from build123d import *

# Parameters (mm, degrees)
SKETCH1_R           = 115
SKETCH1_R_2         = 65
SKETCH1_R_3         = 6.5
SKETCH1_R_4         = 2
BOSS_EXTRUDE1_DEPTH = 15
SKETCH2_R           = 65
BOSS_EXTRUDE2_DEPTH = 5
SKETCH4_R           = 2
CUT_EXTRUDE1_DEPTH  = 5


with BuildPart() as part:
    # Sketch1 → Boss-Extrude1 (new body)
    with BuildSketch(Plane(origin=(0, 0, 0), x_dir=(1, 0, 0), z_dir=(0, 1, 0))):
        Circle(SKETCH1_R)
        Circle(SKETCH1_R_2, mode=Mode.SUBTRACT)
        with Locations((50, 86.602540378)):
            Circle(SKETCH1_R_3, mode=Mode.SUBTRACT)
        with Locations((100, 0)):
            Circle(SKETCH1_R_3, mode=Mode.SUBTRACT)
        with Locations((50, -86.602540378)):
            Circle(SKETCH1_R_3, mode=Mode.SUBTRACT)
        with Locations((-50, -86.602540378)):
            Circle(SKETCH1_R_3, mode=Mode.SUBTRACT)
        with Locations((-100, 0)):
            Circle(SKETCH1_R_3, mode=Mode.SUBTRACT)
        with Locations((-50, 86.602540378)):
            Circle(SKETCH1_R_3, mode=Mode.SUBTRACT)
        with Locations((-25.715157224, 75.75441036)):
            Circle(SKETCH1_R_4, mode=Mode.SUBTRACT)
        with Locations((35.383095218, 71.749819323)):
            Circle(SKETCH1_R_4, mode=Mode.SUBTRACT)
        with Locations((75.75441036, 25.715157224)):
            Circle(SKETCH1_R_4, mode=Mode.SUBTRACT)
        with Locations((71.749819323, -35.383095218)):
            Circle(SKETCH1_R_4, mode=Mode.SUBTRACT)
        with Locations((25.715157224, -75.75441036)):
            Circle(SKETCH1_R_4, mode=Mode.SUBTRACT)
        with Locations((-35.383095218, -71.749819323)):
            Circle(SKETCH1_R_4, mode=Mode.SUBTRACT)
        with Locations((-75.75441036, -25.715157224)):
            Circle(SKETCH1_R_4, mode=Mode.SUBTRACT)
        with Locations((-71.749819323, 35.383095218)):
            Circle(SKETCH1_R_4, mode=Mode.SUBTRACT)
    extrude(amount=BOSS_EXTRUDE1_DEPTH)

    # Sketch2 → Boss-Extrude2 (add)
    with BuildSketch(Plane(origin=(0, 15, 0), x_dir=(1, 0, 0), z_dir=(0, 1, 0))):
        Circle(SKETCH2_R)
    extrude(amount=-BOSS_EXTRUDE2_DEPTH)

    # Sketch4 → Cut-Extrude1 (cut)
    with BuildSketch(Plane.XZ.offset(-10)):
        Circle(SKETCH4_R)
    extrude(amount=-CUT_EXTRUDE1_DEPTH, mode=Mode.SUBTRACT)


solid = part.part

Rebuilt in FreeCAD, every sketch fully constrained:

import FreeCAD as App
import Part
import Sketcher

doc = App.newDocument("Part")
params = doc.addObject("Spreadsheet::Sheet", "Params")
for row, (alias, value) in enumerate([
    ("sketch1_diameter", "230 mm"),
    ("sketch1_diameter2", "13 mm"),
    ("sketch1_diameter3", "4 mm"),
    ("sketch1_diameter4", "130 mm"),
    ("pad1_length", "15 mm"),
    ("sketch2_diameter", "130 mm"),
    ("pad2_length", "5 mm"),
    ("sketch3_diameter", "4 mm"),
    ("pocket1_length", "5 mm"),
], start=1):
    params.set(f"A{row}", alias)
    params.set(f"B{row}", "=" + value)
    params.setAlias(f"B{row}", alias)

body = doc.addObject("PartDesign::Body", "Body")

sketch1 = doc.addObject("Sketcher::SketchObject", "Sketch")
body.addObject(sketch1)
sketch1.AttachmentSupport = (doc.XZ_Plane, [""])
sketch1.MapMode = "FlatFace"
sketch1.addGeometry(Part.Circle(App.Vector(0, 0, 0), App.Vector(0, 0, 1), 115), False)
sketch1.addGeometry(Part.Circle(App.Vector(-50, 86.60254, 0), App.Vector(0, 0, 1), 6.5), False)
sketch1.addGeometry(Part.Circle(App.Vector(-35.383095, 71.749819, 0), App.Vector(0, 0, 1), 2), False)
sketch1.addGeometry(Part.Circle(App.Vector(-75.75441, 25.715157, 0), App.Vector(0, 0, 1), 2), False)
sketch1.addGeometry(Part.Circle(App.Vector(25.715157, 75.75441, 0), App.Vector(0, 0, 1), 2), False)
sketch1.addGeometry(Part.Circle(App.Vector(50, 86.60254, 0), App.Vector(0, 0, 1), 6.5), False)
sketch1.addGeometry(Part.Circle(App.Vector(71.749819, 35.383095, 0), App.Vector(0, 0, 1), 2), False)
sketch1.addGeometry(Part.Circle(App.Vector(-100, 0, 0), App.Vector(0, 0, 1), 6.5), False)
sketch1.addGeometry(Part.Circle(App.Vector(-71.749819, -35.383095, 0), App.Vector(0, 0, 1), 2), False)
sketch1.addGeometry(Part.Circle(App.Vector(-50, -86.60254, 0), App.Vector(0, 0, 1), 6.5), False)
sketch1.addGeometry(Part.Circle(App.Vector(-25.715157, -75.75441, 0), App.Vector(0, 0, 1), 2), False)
sketch1.addGeometry(Part.Circle(App.Vector(0, 0, 0), App.Vector(0, 0, 1), 65), False)
sketch1.addGeometry(Part.Circle(App.Vector(100, 0, 0), App.Vector(0, 0, 1), 6.5), False)
sketch1.addGeometry(Part.Circle(App.Vector(75.75441, -25.715157, 0), App.Vector(0, 0, 1), 2), False)
sketch1.addGeometry(Part.Circle(App.Vector(35.383095, -71.749819, 0), App.Vector(0, 0, 1), 2), False)
sketch1.addGeometry(Part.Circle(App.Vector(50, -86.60254, 0), App.Vector(0, 0, 1), 6.5), False)
sketch1.addConstraint(Sketcher.Constraint("Coincident", 0, 3, -1, 1))
sketch1.addConstraint(Sketcher.Constraint("Coincident", 11, 3, -1, 1))
sketch1.addConstraint(Sketcher.Constraint("Equal", 2, 3))
sketch1.addConstraint(Sketcher.Constraint("Equal", 3, 4))
sketch1.addConstraint(Sketcher.Constraint("Equal", 1, 5))
sketch1.addConstraint(Sketcher.Constraint("Equal", 4, 6))
sketch1.addConstraint(Sketcher.Constraint("Equal", 5, 7))
sketch1.addConstraint(Sketcher.Constraint("Equal", 6, 8))
sketch1.addConstraint(Sketcher.Constraint("Equal", 7, 9))
sketch1.addConstraint(Sketcher.Constraint("Equal", 8, 10))
sketch1.addConstraint(Sketcher.Constraint("Equal", 9, 12))
sketch1.addConstraint(Sketcher.Constraint("Equal", 10, 13))
sketch1.addConstraint(Sketcher.Constraint("Equal", 13, 14))
sketch1.addConstraint(Sketcher.Constraint("Equal", 12, 15))
sketch1.addConstraint(Sketcher.Constraint("Symmetric", 6, 3, 8, 3, -1, 1))
sketch1.addConstraint(Sketcher.Constraint("Symmetric", 5, 3, 9, 3, -1, 1))
sketch1.addConstraint(Sketcher.Constraint("Symmetric", 4, 3, 10, 3, -1, 1))
sketch1.addConstraint(Sketcher.Constraint("Symmetric", 7, 3, 12, 3, -1, 1))
sketch1.addConstraint(Sketcher.Constraint("Symmetric", 3, 3, 13, 3, -1, 1))
sketch1.addConstraint(Sketcher.Constraint("Symmetric", 2, 3, 14, 3, -1, 1))
sketch1.addConstraint(Sketcher.Constraint("Symmetric", 1, 3, 15, 3, -1, 1))
sketch1.addConstraint(Sketcher.Constraint("Symmetric", 1, 3, 5, 3, -2))
sketch1.addConstraint(Sketcher.Constraint("PointOnObject", 7, 3, -1))
sketch1.addConstraint(Sketcher.Constraint("Diameter", 0, 230.0))
sketch1.addConstraint(Sketcher.Constraint("Diameter", 1, 13.0))
sketch1.addConstraint(Sketcher.Constraint("Diameter", 2, 4.0))
sketch1.addConstraint(Sketcher.Constraint("Diameter", 11, 130.0))
sketch1.addConstraint(Sketcher.Constraint("DistanceX", 1, 3, -1, 1, 50.0))
sketch1.addConstraint(Sketcher.Constraint("DistanceX", 7, 3, -1, 1, 100.0))
sketch1.addConstraint(Sketcher.Constraint("DistanceY", -1, 1, 1, 3, 86.60254))
sketch1.addConstraint(Sketcher.Constraint("DistanceY", -1, 1, 2, 3, 71.749819))
sketch1.addConstraint(Sketcher.Constraint("DistanceX", 3, 3, -1, 1, 75.75441))
sketch1.addConstraint(Sketcher.Constraint("DistanceY", -1, 1, 4, 3, 75.75441))
sketch1.addConstraint(Sketcher.Constraint("DistanceX", -1, 1, 6, 3, 71.749819))
sketch1.addConstraint(Sketcher.Constraint("DistanceX", 2, 3, -1, 1, 35.383095))
sketch1.addConstraint(Sketcher.Constraint("DistanceY", -1, 1, 3, 3, 25.715157))
sketch1.addConstraint(Sketcher.Constraint("DistanceX", -1, 1, 4, 3, 25.715157))
sketch1.addConstraint(Sketcher.Constraint("DistanceY", -1, 1, 6, 3, 35.383095))
sketch1.setExpression("Constraints[23]", "Params.sketch1_diameter")
sketch1.setExpression("Constraints[24]", "Params.sketch1_diameter2")
sketch1.setExpression("Constraints[25]", "Params.sketch1_diameter3")
sketch1.setExpression("Constraints[26]", "Params.sketch1_diameter4")
pad1 = doc.addObject("PartDesign::Pad", "Pad")
body.addObject(pad1)
pad1.Profile = sketch1
pad1.setExpression("Length", "Params.pad1_length")
pad1.Reversed = True

sketch2 = doc.addObject("Sketcher::SketchObject", "Sketch001")
body.addObject(sketch2)
sketch2.AttachmentSupport = (doc.XZ_Plane, [""])
sketch2.MapMode = "FlatFace"
sketch2.AttachmentOffset = App.Placement(App.Vector(0, 0, -15), App.Rotation())
sketch2.addGeometry(Part.Circle(App.Vector(0, 0, 0), App.Vector(0, 0, 1), 65), False)
sketch2.addConstraint(Sketcher.Constraint("Coincident", 0, 3, -1, 1))
sketch2.addConstraint(Sketcher.Constraint("Diameter", 0, 130.0))
sketch2.setExpression("Constraints[1]", "Params.sketch2_diameter")
pad2 = doc.addObject("PartDesign::Pad", "Pad001")
body.addObject(pad2)
pad2.Profile = sketch2
pad2.setExpression("Length", "Params.pad2_length")

sketch3 = doc.addObject("Sketcher::SketchObject", "Sketch002")
body.addObject(sketch3)
sketch3.AttachmentSupport = (doc.XZ_Plane, [""])
sketch3.MapMode = "FlatFace"
sketch3.AttachmentOffset = App.Placement(App.Vector(0, 0, -10), App.Rotation())
sketch3.addGeometry(Part.Circle(App.Vector(0, 0, 0), App.Vector(0, 0, 1), 2), False)
sketch3.addConstraint(Sketcher.Constraint("Coincident", 0, 3, -1, 1))
sketch3.addConstraint(Sketcher.Constraint("Diameter", 0, 4.0))
sketch3.setExpression("Constraints[1]", "Params.sketch3_diameter")
pocket1 = doc.addObject("PartDesign::Pocket", "Pocket")
body.addObject(pocket1)
pocket1.Profile = sketch3
pocket1.setExpression("Length", "Params.pocket1_length")

doc.recompute()
